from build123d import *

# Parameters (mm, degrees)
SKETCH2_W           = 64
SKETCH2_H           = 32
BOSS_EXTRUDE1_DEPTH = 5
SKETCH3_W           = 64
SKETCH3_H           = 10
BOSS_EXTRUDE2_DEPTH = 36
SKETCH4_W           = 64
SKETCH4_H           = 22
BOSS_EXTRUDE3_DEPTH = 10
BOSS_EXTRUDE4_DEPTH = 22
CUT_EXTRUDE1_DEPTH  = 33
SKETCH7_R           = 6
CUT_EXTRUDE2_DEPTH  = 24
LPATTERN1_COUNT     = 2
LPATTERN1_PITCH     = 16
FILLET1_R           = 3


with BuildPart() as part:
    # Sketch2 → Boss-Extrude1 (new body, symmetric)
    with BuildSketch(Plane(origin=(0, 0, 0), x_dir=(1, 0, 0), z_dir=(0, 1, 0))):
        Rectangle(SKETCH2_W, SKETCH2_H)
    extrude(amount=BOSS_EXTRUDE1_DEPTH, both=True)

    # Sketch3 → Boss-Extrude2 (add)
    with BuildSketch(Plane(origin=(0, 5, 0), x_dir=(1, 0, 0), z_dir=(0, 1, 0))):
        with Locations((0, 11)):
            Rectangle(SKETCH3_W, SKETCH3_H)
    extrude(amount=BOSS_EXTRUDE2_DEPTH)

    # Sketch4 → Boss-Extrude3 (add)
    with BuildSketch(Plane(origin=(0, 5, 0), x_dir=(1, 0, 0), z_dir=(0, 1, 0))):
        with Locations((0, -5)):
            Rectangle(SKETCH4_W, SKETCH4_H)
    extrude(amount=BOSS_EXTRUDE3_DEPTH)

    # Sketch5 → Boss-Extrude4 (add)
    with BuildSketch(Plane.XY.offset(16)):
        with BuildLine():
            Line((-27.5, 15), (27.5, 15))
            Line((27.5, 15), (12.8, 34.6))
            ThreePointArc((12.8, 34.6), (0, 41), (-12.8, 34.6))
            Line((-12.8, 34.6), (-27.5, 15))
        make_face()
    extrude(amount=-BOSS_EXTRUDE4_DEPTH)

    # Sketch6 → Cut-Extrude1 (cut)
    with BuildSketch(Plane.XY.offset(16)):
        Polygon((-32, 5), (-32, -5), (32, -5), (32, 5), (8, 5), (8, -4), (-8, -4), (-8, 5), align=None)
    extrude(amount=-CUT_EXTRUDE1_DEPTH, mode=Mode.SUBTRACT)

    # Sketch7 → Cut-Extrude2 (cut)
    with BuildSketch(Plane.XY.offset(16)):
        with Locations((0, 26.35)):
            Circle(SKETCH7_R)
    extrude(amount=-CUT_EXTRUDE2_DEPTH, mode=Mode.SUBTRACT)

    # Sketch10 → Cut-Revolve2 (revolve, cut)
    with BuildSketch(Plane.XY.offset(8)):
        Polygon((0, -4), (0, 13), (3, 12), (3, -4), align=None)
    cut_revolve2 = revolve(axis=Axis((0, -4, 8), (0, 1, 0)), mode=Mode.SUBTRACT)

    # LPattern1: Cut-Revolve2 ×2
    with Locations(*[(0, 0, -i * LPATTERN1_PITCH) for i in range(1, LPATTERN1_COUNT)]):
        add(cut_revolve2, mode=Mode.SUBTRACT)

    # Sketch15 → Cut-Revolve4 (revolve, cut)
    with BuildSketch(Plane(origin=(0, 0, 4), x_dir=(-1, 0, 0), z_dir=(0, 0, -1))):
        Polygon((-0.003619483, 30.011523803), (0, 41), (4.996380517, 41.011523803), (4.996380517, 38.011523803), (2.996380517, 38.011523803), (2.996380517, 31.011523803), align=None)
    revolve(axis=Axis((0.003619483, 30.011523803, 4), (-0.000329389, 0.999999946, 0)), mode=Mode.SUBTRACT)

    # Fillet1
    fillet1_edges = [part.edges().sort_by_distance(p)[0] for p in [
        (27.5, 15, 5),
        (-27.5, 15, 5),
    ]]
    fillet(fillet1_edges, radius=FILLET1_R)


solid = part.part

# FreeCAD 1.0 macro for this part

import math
import FreeCAD as App
import Part
import Sketcher

V = App.Vector
Q = App.Units.Quantity


def edges_at(feature, points):
    """Names of the edges that pass closest to the given points."""
    edges = feature.Shape.Edges
    near = lambda p: min(range(len(edges)), key=lambda i: edges[i].distToShape(Part.Vertex(*p))[0])
    return sorted({f"Edge{near(p) + 1}" for p in points})

doc = App.newDocument("Part")
body = doc.addObject("PartDesign::Body", "Body")

sketch1 = doc.addObject("Sketcher::SketchObject", "Sketch")
body.addObject(sketch1)
sketch1.AttachmentSupport = (doc.XZ_Plane, [""])
sketch1.MapMode = "FlatFace"
sketch1.addGeometry([
    Part.LineSegment(V(-32, -16, 0), V(-32, 16, 0)),
    Part.LineSegment(V(-32, 16, 0), V(32, 16, 0)),
    Part.LineSegment(V(32, 16, 0), V(32, -16, 0)),
    Part.LineSegment(V(32, -16, 0), V(-32, -16, 0)),
], False)
sketch1.addConstraint([
    Sketcher.Constraint("Coincident", 0, 2, 1, 1),
    Sketcher.Constraint("Coincident", 1, 2, 2, 1),
    Sketcher.Constraint("Coincident", 2, 2, 3, 1),
    Sketcher.Constraint("Coincident", 3, 2, 0, 1),
    Sketcher.Constraint("Vertical", 0),
    Sketcher.Constraint("Horizontal", 1),
    Sketcher.Constraint("Vertical", 2),
    Sketcher.Constraint("Horizontal", 3),
    Sketcher.Constraint("Symmetric", 0, 2, 2, 2, -1, 1),
    Sketcher.Constraint("DistanceX", 1, 1, 1, 2, Q("64 mm")),
    Sketcher.Constraint("DistanceY", 0, 1, 0, 2, Q("32 mm")),
])
pad1 = doc.addObject("PartDesign::Pad", "Pad")
body.addObject(pad1)
pad1.Profile = sketch1
pad1.Length = 10
pad1.Midplane = True

sketch2 = doc.addObject("Sketcher::SketchObject", "Sketch001")
body.addObject(sketch2)
sketch2.AttachmentSupport = (doc.XZ_Plane, [""])
sketch2.MapMode = "FlatFace"
sketch2.AttachmentOffset = App.Placement(V(0, 0, -5), App.Rotation())
sketch2.addGeometry([
    Part.LineSegment(V(-32, -16, 0), V(-32, -6, 0)),
    Part.LineSegment(V(-32, -6, 0), V(32, -6, 0)),
    Part.LineSegment(V(32, -6, 0), V(32, -16, 0)),
    Part.LineSegment(V(32, -16, 0), V(-32, -16, 0)),
], False)
sketch2.addConstraint([
    Sketcher.Constraint("Coincident", 0, 2, 1, 1),
    Sketcher.Constraint("Coincident", 1, 2, 2, 1),
    Sketcher.Constraint("Coincident", 2, 2, 3, 1),
    Sketcher.Constraint("Coincident", 3, 2, 0, 1),
    Sketcher.Constraint("Vertical", 0),
    Sketcher.Constraint("Horizontal", 1),
    Sketcher.Constraint("Vertical", 2),
    Sketcher.Constraint("Horizontal", 3),
    Sketcher.Constraint("DistanceX", 1, 1, 1, 2, Q("64 mm")),
    Sketcher.Constraint("DistanceY", 0, 1, 0, 2, Q("10 mm")),
    Sketcher.Constraint("DistanceX", 0, 2, -1, 1, Q("32 mm")),
    Sketcher.Constraint("DistanceY", 0, 2, -1, 1, Q("6 mm")),
])
pad2 = doc.addObject("PartDesign::Pad", "Pad001")
body.addObject(pad2)
pad2.Profile = sketch2
pad2.Length = 36
pad2.Reversed = True

sketch3 = doc.addObject("Sketcher::SketchObject", "Sketch002")
body.addObject(sketch3)
sketch3.AttachmentSupport = (doc.XZ_Plane, [""])
sketch3.MapMode = "FlatFace"
sketch3.AttachmentOffset = App.Placement(V(0, 0, -5), App.Rotation())
sketch3.addGeometry([
    Part.LineSegment(V(-32, -6, 0), V(-32, 16, 0)),
    Part.LineSegment(V(-32, 16, 0), V(32, 16, 0)),
    Part.LineSegment(V(32, 16, 0), V(32, -6, 0)),
    Part.LineSegment(V(32, -6, 0), V(-32, -6, 0)),
], False)
sketch3.addConstraint([
    Sketcher.Constraint("Coincident", 0, 2, 1, 1),
    Sketcher.Constraint("Coincident", 1, 2, 2, 1),
    Sketcher.Constraint("Coincident", 2, 2, 3, 1),
    Sketcher.Constraint("Coincident", 3, 2, 0, 1),
    Sketcher.Constraint("Vertical", 0),
    Sketcher.Constraint("Horizontal", 1),
    Sketcher.Constraint("Vertical", 2),
    Sketcher.Constraint("Horizontal", 3),
    Sketcher.Constraint("DistanceX", 1, 1, 1, 2, Q("64 mm")),
    Sketcher.Constraint("DistanceY", 0, 1, 0, 2, Q("22 mm")),
    Sketcher.Constraint("DistanceX", 0, 2, -1, 1, Q("32 mm")),
    Sketcher.Constraint("DistanceY", -1, 1, 0, 2, Q("16 mm")),
])
pad3 = doc.addObject("PartDesign::Pad", "Pad002")
body.addObject(pad3)
pad3.Profile = sketch3
pad3.Length = 10
pad3.Reversed = True

sketch4 = doc.addObject("Sketcher::SketchObject", "Sketch003")
body.addObject(sketch4)
sketch4.AttachmentSupport = (doc.XY_Plane, [""])
sketch4.MapMode = "FlatFace"
sketch4.AttachmentOffset = App.Placement(V(0, 0, 16), App.Rotation())
sketch4.addGeometry([
    Part.LineSegment(V(-28, 15, 0), V(28, 15, 0)),
    Part.LineSegment(V(28, 15, 0), V(13, 35, 0)),
    Part.ArcOfCircle(Part.Circle(V(0, 25, 0), V(0, 0, 1), 16), math.radians(37), math.radians(143)),
    Part.LineSegment(V(-13, 35, 0), V(-28, 15, 0)),
], False)
sketch4.addConstraint([
    Sketcher.Constraint("Coincident", 0, 2, 1, 1),
    Sketcher.Constraint("Tangent", 1, 2, 2, 1),
    Sketcher.Constraint("Tangent", 2, 2, 3, 1),
    Sketcher.Constraint("Coincident", 3, 2, 0, 1),
    Sketcher.Constraint("Horizontal", 0),
    Sketcher.Constraint("Symmetric", 1, 2, 2, 2, -2),
    Sketcher.Constraint("Radius", 2, Q("16 mm")),
    Sketcher.Constraint("DistanceX", 0, 1, 0, 2, Q("55 mm")),
    Sketcher.Constraint("DistanceY", -1, 1, 2, 3, Q("25 mm")),
    Sketcher.Constraint("DistanceY", -1, 1, 0, 2, Q("15 mm")),
])
pad4 = doc.addObject("PartDesign::Pad", "Pad003")
body.addObject(pad4)
pad4.Profile = sketch4
pad4.Length = 22
pad4.Reversed = True

sketch5 = doc.addObject("Sketcher::SketchObject", "Sketch004")
body.addObject(sketch5)
sketch5.AttachmentSupport = (doc.XY_Plane, [""])
sketch5.MapMode = "FlatFace"
sketch5.AttachmentOffset = App.Placement(V(0, 0, 16), App.Rotation())
sketch5.addGeometry([
    Part.LineSegment(V(-32, 5, 0), V(-32, -5, 0)),
    Part.LineSegment(V(-32, -5, 0), V(32, -5, 0)),
    Part.LineSegment(V(32, -5, 0), V(32, 5, 0)),
    Part.LineSegment(V(32, 5, 0), V(8, 5, 0)),
    Part.LineSegment(V(8, 5, 0), V(8, -4, 0)),
    Part.LineSegment(V(8, -4, 0), V(-8, -4, 0)),
    Part.LineSegment(V(-8, -4, 0), V(-8, 5, 0)),
    Part.LineSegment(V(-8, 5, 0), V(-32, 5, 0)),
], False)
sketch5.addConstraint([
    Sketcher.Constraint("Coincident", 0, 2, 1, 1),
    Sketcher.Constraint("Coincident", 1, 2, 2, 1),
    Sketcher.Constraint("Coincident", 2, 2, 3, 1),
    Sketcher.Constraint("Coincident", 3, 2, 4, 1),
    Sketcher.Constraint("Coincident", 4, 2, 5, 1),
    Sketcher.Constraint("Coincident", 5, 2, 6, 1),
    Sketcher.Constraint("Coincident", 6, 2, 7, 1),
    Sketcher.Constraint("Coincident", 7, 2, 0, 1),
    Sketcher.Constraint("Vertical", 0),
    Sketcher.Constraint("Horizontal", 1),
    Sketcher.Constraint("Vertical", 2),
    Sketcher.Constraint("Horizontal", 3),
    Sketcher.Constraint("Vertical", 4),
    Sketcher.Constraint("Horizontal", 5),
    Sketcher.Constraint("Vertical", 6),
    Sketcher.Constraint("Horizontal", 7),
    Sketcher.Constraint("Symmetric", 0, 2, 2, 2, -1, 1),
    Sketcher.Constraint("Symmetric", 3, 2, 6, 2, -2),
    Sketcher.Constraint("DistanceX", 1, 1, 1, 2, Q("64 mm")),
    Sketcher.Constraint("DistanceX", 3, 2, 3, 1, Q("24 mm")),
    Sketcher.Constraint("DistanceY", 0, 2, 0, 1, Q("10 mm")),
    Sketcher.Constraint("DistanceY", 4, 2, 4, 1, Q("9 mm")),
])
pocket1 = doc.addObject("PartDesign::Pocket", "Pocket")
body.addObject(pocket1)
pocket1.Profile = sketch5
pocket1.Length = 33

sketch6 = doc.addObject("Sketcher::SketchObject", "Sketch005")
body.addObject(sketch6)
sketch6.AttachmentSupport = (doc.XY_Plane, [""])
sketch6.MapMode = "FlatFace"
sketch6.AttachmentOffset = App.Placement(V(0, 0, 16), App.Rotation())
sketch6.addGeometry(Part.Circle(V(0, 26, 0), V(0, 0, 1), 6), False)
sketch6.addConstraint([
    Sketcher.Constraint("PointOnObject", 0, 3, -2),
    Sketcher.Constraint("Diameter", 0, Q("12 mm")),
    Sketcher.Constraint("DistanceY", -1, 1, 0, 3, Q("26.35 mm")),
])
pocket2 = doc.addObject("PartDesign::Pocket", "Pocket001")
body.addObject(pocket2)
pocket2.Profile = sketch6
pocket2.Length = 24

sketch7 = doc.addObject("Sketcher::SketchObject", "Sketch006")
body.addObject(sketch7)
sketch7.AttachmentSupport = (doc.XY_Plane, [""])
sketch7.MapMode = "FlatFace"
sketch7.AttachmentOffset = App.Placement(V(0, 0, 8), App.Rotation())
sketch7.addGeometry([
    Part.LineSegment(V(0, 13, 0), V(0, -4, 0)),
    Part.LineSegment(V(0, -4, 0), V(3, -4, 0)),
    Part.LineSegment(V(3, -4, 0), V(3, 12, 0)),
    Part.LineSegment(V(3, 12, 0), V(0, 13, 0)),
], False)
sketch7.addConstraint([
    Sketcher.Constraint("Coincident", 0, 2, 1, 1),
    Sketcher.Constraint("Coincident", 1, 2, 2, 1),
    Sketcher.Constraint("Coincident", 2, 2, 3, 1),
    Sketcher.Constraint("Coincident", 3, 2, 0, 1),
    Sketcher.Constraint("Vertical", 0),
    Sketcher.Constraint("Horizontal", 1),
    Sketcher.Constraint("Vertical", 2),
    Sketcher.Constraint("PointOnObject", 0, 2, -2),
    Sketcher.Constraint("DistanceX", 1, 1, 1, 2, Q("3 mm")),
    Sketcher.Constraint("DistanceY", 0, 2, 0, 1, Q("17 mm")),
    Sketcher.Constraint("DistanceY", 2, 1, 2, 2, Q("16 mm")),
    Sketcher.Constraint("DistanceY", 0, 2, -1, 1, Q("4 mm")),
])
groove = doc.addObject("PartDesign::Groove", "Groove")
body.addObject(groove)
groove.Profile = sketch7
groove.ReferenceAxis = (sketch7, ["V_Axis"])
groove.Angle = 360
doc.recompute()

linearpattern = doc.addObject("PartDesign::LinearPattern", "LinearPattern")
body.addObject(linearpattern)
linearpattern.Originals = [groove]
linearpattern.Direction = (doc.Z_Axis, [""])
linearpattern.Mode = "offset"
linearpattern.Offset = 16
linearpattern.Occurrences = 2
linearpattern.Reversed = True
body.Tip = linearpattern

sketch8 = doc.addObject("Sketcher::SketchObject", "Sketch007")
body.addObject(sketch8)
sketch8.AttachmentSupport = (doc.XY_Plane, [""])
sketch8.MapMode = "FlatFace"
sketch8.AttachmentOffset = App.Placement(V(0, 0, 4), App.Rotation())
sketch8.addGeometry([
    Part.LineSegment(V(0, 41, 0), V(0, 30, 0)),
    Part.LineSegment(V(0, 30, 0), V(-3, 31, 0)),
    Part.LineSegment(V(-3, 31, 0), V(-3, 38, 0)),
    Part.LineSegment(V(-3, 38, 0), V(-5, 38, 0)),
    Part.LineSegment(V(-5, 38, 0), V(-5, 41, 0)),
    Part.LineSegment(V(-5, 41, 0), V(0, 41, 0)),
], False)
sketch8.addGeometry(Part.LineSegment(V(0, 30, 0), V(0, 41, 0)), True)
sketch8.addConstraint([
    Sketcher.Constraint("Coincident", 0, 2, 1, 1),
    Sketcher.Constraint("Coincident", 1, 2, 2, 1),
    Sketcher.Constraint("Coincident", 2, 2, 3, 1),
    Sketcher.Constraint("Coincident", 3, 2, 4, 1),
    Sketcher.Constraint("Coincident", 4, 2, 5, 1),
    Sketcher.Constraint("Coincident", 5, 2, 0, 1),
    Sketcher.Constraint("Vertical", 2),
    Sketcher.Constraint("Horizontal", 3),
    Sketcher.Constraint("Vertical", 4),
    Sketcher.Constraint("Coincident", 6, 1, 0, 2),
    Sketcher.Constraint("PointOnObject", 5, 2, -2),
    Sketcher.Constraint("Parallel", 0, 6),
    Sketcher.Constraint("DistanceX", 3, 2, 3, 1, Q("2 mm")),
    Sketcher.Constraint("DistanceY", 2, 1, 2, 2, Q("7 mm")),
    Sketcher.Constraint("DistanceY", 4, 1, 4, 2, Q("3 mm")),
    Sketcher.Constraint("DistanceY", -1, 1, 5, 2, Q("41 mm")),
    Sketcher.Constraint("DistanceX", 1, 2, 0, 2, Q("3 mm")),
    Sketcher.Constraint("DistanceY", 0, 2, 1, 2, Q("1 mm")),
    Sketcher.Constraint("DistanceX", -1, 1, 0, 2, Q("0.003619 mm")),
    Sketcher.Constraint("DistanceY", -1, 1, 6, 2, Q("41.01317 mm")),
    Sketcher.Constraint("Distance", 0, Q("10.988477 mm")),
])
groove2 = doc.addObject("PartDesign::Groove", "Groove001")
body.addObject(groove2)
groove2.Profile = sketch8
groove2.ReferenceAxis = (sketch8, ["Axis0"])
groove2.Angle = 360
doc.recompute()

fillet = doc.addObject("PartDesign::Fillet", "Fillet")
body.addObject(fillet)
fillet.Base = (groove2, edges_at(groove2, [(27.5, 15, 5), (-27.5, 15, 5)]))
fillet.Radius = 3

doc.recompute()
